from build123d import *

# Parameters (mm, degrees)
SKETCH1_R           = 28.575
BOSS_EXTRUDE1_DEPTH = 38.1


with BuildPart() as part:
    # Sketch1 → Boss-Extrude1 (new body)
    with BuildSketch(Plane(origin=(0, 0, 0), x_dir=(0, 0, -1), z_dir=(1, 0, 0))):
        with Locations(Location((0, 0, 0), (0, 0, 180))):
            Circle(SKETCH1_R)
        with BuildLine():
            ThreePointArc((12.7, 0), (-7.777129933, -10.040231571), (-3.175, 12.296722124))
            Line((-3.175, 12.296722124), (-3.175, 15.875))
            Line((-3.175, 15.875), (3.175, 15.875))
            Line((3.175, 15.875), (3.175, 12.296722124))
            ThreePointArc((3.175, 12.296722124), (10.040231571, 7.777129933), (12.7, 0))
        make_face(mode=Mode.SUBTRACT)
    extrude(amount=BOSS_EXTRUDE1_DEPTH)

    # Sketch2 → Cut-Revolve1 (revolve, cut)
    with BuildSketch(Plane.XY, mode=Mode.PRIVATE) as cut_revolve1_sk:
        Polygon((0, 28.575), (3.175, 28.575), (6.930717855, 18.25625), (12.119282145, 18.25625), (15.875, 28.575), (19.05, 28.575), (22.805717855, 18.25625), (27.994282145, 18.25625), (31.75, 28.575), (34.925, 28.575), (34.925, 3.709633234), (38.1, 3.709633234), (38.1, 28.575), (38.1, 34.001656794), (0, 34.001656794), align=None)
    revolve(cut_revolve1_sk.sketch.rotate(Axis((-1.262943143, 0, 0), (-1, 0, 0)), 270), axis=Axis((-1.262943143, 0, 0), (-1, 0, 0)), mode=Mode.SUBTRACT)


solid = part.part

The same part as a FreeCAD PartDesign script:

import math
import FreeCAD as App
import Part
import Sketcher
from FreeCAD import Vector
Q = App.Units.Quantity

doc = App.newDocument("Part")
params = doc.addObject("Spreadsheet::Sheet", "Params")
for row, (alias, value) in enumerate([
    ("sketch1_radius", "0.5 in"),
    ("sketch1_diameter", "2.25 in"),
    ("sketch1_height", "0.25 in"),
    ("pad1_length", "1.5 in"),
    ("sketch2_width", "1.5 in"),
    ("groove_angle", "360 deg"),
], start=1):
    params.set(f"A{row}", alias)
    params.set(f"B{row}", "=" + value)
    params.setAlias(f"B{row}", alias)

body = doc.addObject("PartDesign::Body", "Body")

# Sketch on YZ plane
sketch1 = doc.addObject("Sketcher::SketchObject", "Sketch")
body.addObject(sketch1)
sketch1.AttachmentSupport = (doc.YZ_Plane, [""])
sketch1.MapMode = "FlatFace"
sketch1.addGeometry([
    Part.Circle(Vector(0, 0, 0), Vector(0, 0, 1), 28.6),  # 0
    Part.ArcOfCircle(Part.Circle(Vector(0, 0, 0), Vector(0, 0, 1), 12.7), math.radians(-90), math.radians(-14)),  # 1
    Part.ArcOfCircle(Part.Circle(Vector(0, 0, 0), Vector(0, 0, 1), 12.7), math.radians(14), math.radians(270)),  # 2
    Part.LineSegment(Vector(12.3, 3.2, 0), Vector(15.9, 3.2, 0)),  # 3
    Part.LineSegment(Vector(15.9, 3.2, 0), Vector(15.9, -3.2, 0)),  # 4
    Part.LineSegment(Vector(15.9, -3.2, 0), Vector(12.3, -3.2, 0)),  # 5
], False)
sketch1.addConstraint([
    Sketcher.Constraint("Tangent", 1, 1, 2, 2),
    Sketcher.Constraint("Coincident", 2, 1, 3, 1),
    Sketcher.Constraint("Coincident", 3, 2, 4, 1),
    Sketcher.Constraint("Coincident", 4, 2, 5, 1),
    Sketcher.Constraint("Coincident", 5, 2, 1, 2),
    Sketcher.Constraint("Horizontal", 3),
    Sketcher.Constraint("Vertical", 4),
    Sketcher.Constraint("Horizontal", 5),
    Sketcher.Constraint("Coincident", 0, 3, -1, 1),
    Sketcher.Constraint("Coincident", 1, 3, -1, 1),
    Sketcher.Constraint("Equal", 1, 2),
    Sketcher.Constraint("PointOnObject", 1, 1, -2),
    Sketcher.Constraint("Vertical", 2, 1, 5, 2),
    Sketcher.Constraint("Radius", 1, Q("0.5 in")),
    Sketcher.Constraint("Diameter", 0, Q("2.25 in")),
    Sketcher.Constraint("DistanceY", 4, 2, 4, 1, Q("0.25 in")),
    Sketcher.Constraint("DistanceX", -1, 1, 3, 2, Q("0.625 in")),
])
sketch1.setExpression("Constraints[13]", "Params.sketch1_radius")
sketch1.setExpression("Constraints[14]", "Params.sketch1_diameter")
sketch1.setExpression("Constraints[15]", "Params.sketch1_height")
pad1 = doc.addObject("PartDesign::Pad", "Pad")
body.addObject(pad1)
pad1.Profile = sketch1
pad1.setExpression("Length", "Params.pad1_length")

# Sketch on XY plane
sketch2 = doc.addObject("Sketcher::SketchObject", "Sketch001")
body.addObject(sketch2)
sketch2.AttachmentSupport = (doc.XY_Plane, [""])
sketch2.MapMode = "FlatFace"
sketch2.addGeometry([
    Part.LineSegment(Vector(0, 28.6, 0), Vector(3.2, 28.6, 0)),  # 0
    Part.LineSegment(Vector(3.2, 28.6, 0), Vector(6.9, 18.3, 0)),  # 1
    Part.LineSegment(Vector(6.9, 18.3, 0), Vector(12.1, 18.3, 0)),  # 2
    Part.LineSegment(Vector(12.1, 18.3, 0), Vector(15.9, 28.6, 0)),  # 3
    Part.LineSegment(Vector(15.9, 28.6, 0), Vector(19.1, 28.6, 0)),  # 4
    Part.LineSegment(Vector(19.1, 28.6, 0), Vector(22.8, 18.3, 0)),  # 5
    Part.LineSegment(Vector(22.8, 18.3, 0), Vector(28, 18.3, 0)),  # 6
    Part.LineSegment(Vector(28, 18.3, 0), Vector(31.8, 28.6, 0)),  # 7
    Part.LineSegment(Vector(31.8, 28.6, 0), Vector(34.9, 28.6, 0)),  # 8
    Part.LineSegment(Vector(34.9, 28.6, 0), Vector(34.9, 3.7, 0)),  # 9
    Part.LineSegment(Vector(34.9, 3.7, 0), Vector(38.1, 3.7, 0)),  # 10
    Part.LineSegment(Vector(38.1, 3.7, 0), Vector(38.1, 34, 0)),  # 11
    Part.LineSegment(Vector(38.1, 34, 0), Vector(0, 34, 0)),  # 12
    Part.LineSegment(Vector(0, 34, 0), Vector(0, 28.6, 0)),  # 13
], False)
sketch2.addConstraint([
    Sketcher.Constraint("Coincident", 0, 2, 1, 1),
    Sketcher.Constraint("Coincident", 1, 2, 2, 1),
    Sketcher.Constraint("Coincident", 2, 2, 3, 1),
    Sketcher.Constraint("Coincident", 3, 2, 4, 1),
    Sketcher.Constraint("Coincident", 4, 2, 5, 1),
    Sketcher.Constraint("Coincident", 5, 2, 6, 1),
    Sketcher.Constraint("Coincident", 6, 2, 7, 1),
    Sketcher.Constraint("Coincident", 7, 2, 8, 1),
    Sketcher.Constraint("Coincident", 8, 2, 9, 1),
    Sketcher.Constraint("Coincident", 9, 2, 10, 1),
    Sketcher.Constraint("Coincident", 10, 2, 11, 1),
    Sketcher.Constraint("Coincident", 11, 2, 12, 1),
    Sketcher.Constraint("Coincident", 12, 2, 13, 1),
    Sketcher.Constraint("Coincident", 13, 2, 0, 1),
    Sketcher.Constraint("Horizontal", 0),
    Sketcher.Constraint("Horizontal", 2),
    Sketcher.Constraint("Horizontal", 4),
    Sketcher.Constraint("Horizontal", 6),
    Sketcher.Constraint("Horizontal", 8),
    Sketcher.Constraint("Vertical", 9),
    Sketcher.Constraint("Horizontal", 10),
    Sketcher.Constraint("Vertical", 11),
    Sketcher.Constraint("Horizontal", 12),
    Sketcher.Constraint("Vertical", 13),
    Sketcher.Constraint("PointOnObject", 12, 2, -2),
    Sketcher.Constraint("Parallel", 1, 5),
    Sketcher.Constraint("Parallel", 3, 7),
    Sketcher.Constraint("Horizontal", 0, 2, 3, 2),
    Sketcher.Constraint("Horizontal", 2, 2, 5, 2),
    Sketcher.Constraint("Horizontal", 4, 2, 7, 2),
    Sketcher.Constraint("Equal", 0, 4),
    Sketcher.Constraint("Equal", 2, 6),
    Sketcher.Constraint("Equal", 4, 8),
    Sketcher.Constraint("Equal", 8, 10),
    Sketcher.Constraint("Equal", 1, 3),
    Sketcher.Constraint("DistanceX", 12, 2, 12, 1, Q("1.5 in")),
    Sketcher.Constraint("Angle", 1, Q("-70 deg")),
    Sketcher.Constraint("DistanceX", 0, 2, 3, 2, Q("0.5 in")),
    Sketcher.Constraint("DistanceY", -1, 1, 0, 2, Q("1.125 in")),
    Sketcher.Constraint("DistanceY", -1, 1, 1, 2, Q("0.71875 in")),
    Sketcher.Constraint("DistanceY", 9, 2, 9, 1, Q("24.865367 mm")),
    Sketcher.Constraint("DistanceY", 11, 1, 11, 2, Q("30.292024 mm")),
])
sketch2.setExpression("Constraints[35]", "Params.sketch2_width")
groove = doc.addObject("PartDesign::Groove", "Groove")
body.addObject(groove)
groove.Profile = sketch2
groove.ReferenceAxis = (sketch2, ["H_Axis"])
groove.setExpression("Angle", "Params.groove_angle")

doc.recompute()
